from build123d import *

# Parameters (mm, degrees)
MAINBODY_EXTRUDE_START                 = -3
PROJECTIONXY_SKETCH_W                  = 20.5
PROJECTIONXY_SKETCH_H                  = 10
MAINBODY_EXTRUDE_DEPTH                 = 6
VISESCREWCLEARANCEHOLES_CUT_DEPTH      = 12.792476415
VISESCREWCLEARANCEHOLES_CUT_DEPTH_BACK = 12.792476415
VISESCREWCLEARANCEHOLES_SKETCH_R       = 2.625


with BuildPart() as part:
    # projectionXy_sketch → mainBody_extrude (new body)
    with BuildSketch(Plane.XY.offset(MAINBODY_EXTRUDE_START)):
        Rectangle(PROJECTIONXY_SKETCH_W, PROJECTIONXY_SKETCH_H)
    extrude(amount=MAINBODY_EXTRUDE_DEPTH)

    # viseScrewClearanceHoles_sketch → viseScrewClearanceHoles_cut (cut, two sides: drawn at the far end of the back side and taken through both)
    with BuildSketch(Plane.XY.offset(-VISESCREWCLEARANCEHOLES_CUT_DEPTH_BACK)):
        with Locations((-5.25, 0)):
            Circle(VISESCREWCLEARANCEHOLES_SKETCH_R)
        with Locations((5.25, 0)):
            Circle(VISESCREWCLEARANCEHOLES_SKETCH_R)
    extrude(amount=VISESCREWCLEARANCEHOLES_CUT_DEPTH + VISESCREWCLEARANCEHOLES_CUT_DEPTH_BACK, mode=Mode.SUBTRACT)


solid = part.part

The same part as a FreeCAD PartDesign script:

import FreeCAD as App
import Part
import Sketcher

V = App.Vector
Q = App.Units.Quantity


def add_polygon(sketch, points):
    """Adds a closed chain of lines whose ends are joined by coincident constraints."""
    first, n = sketch.GeometryCount, len(points)
    for a, b in zip(points, points[1:] + points[:1]):
        sketch.addGeometry(Part.LineSegment(App.Vector(*a, 0), App.Vector(*b, 0)), False)
    for i in range(n):
        sketch.addConstraint(Sketcher.Constraint("Coincident", first + i, 2, first + (i + 1) % n, 1))

doc = App.newDocument("Part")
params = doc.addObject("Spreadsheet::Sheet", "Params")
for row, (alias, value) in enumerate([
    ("sketch1_height", "10 mm"),
    ("sketch1_width", "20.5 mm"),
    ("pad1_length", "6 mm"),
    ("sketch2_diameter", "5.25 mm"),
], start=1):
    params.set(f"A{row}", alias)
    params.set(f"B{row}", "=" + value)
    params.setAlias(f"B{row}", alias)

body = doc.addObject("PartDesign::Body", "Body")

sketch1 = body.newObject("Sketcher::SketchObject", "Sketch")
sketch1.AttachmentSupport = (doc.getObject("XY_Plane"), [""])
sketch1.MapMode = "FlatFace"
sketch1.AttachmentOffset = App.Placement(V(0, 0, -3), App.Rotation())
add_polygon(sketch1, [(-10.25, 5), (-10.25, -5), (10.25, -5), (10.25, 5)])
sketch1.addConstraint([
    Sketcher.Constraint("Vertical", 0),
    Sketcher.Constraint("Horizontal", 1),
    Sketcher.Constraint("Vertical", 2),
    Sketcher.Constraint("Horizontal", 3),
    Sketcher.Constraint("Symmetric", 0, 2, 2, 2, -1, 1),
    Sketcher.Constraint("DistanceY", 0, 2, 0, 1, Q("10 mm")),
    Sketcher.Constraint("DistanceX", 1, 1, 1, 2, Q("20.5 mm")),
])
sketch1.setExpression("Constraints[9]", "Params.sketch1_height")
sketch1.setExpression("Constraints[10]", "Params.sketch1_width")
pad1 = body.newObject("PartDesign::Pad", "Pad")
pad1.Profile = sketch1
pad1.setExpression("Length", "Params.pad1_length")

sketch2 = body.newObject("Sketcher::SketchObject", "Sketch001")
sketch2.AttachmentSupport = (doc.getObject("XY_Plane"), [""])
sketch2.MapMode = "FlatFace"
sketch2.addGeometry([
    Part.Circle(V(-5.25, 0, 0), V(0, 0, 1), 2.625),
    Part.Circle(V(5.25, 0, 0), V(0, 0, 1), 2.625),
], False)
sketch2.addConstraint([
    Sketcher.Constraint("Equal", 0, 1),
    Sketcher.Constraint("Symmetric", 0, 3, 1, 3, -1, 1),
    Sketcher.Constraint("PointOnObject", 0, 3, -1),
    Sketcher.Constraint("Diameter", 0, Q("5.25 mm")),
    Sketcher.Constraint("DistanceX", 0, 3, 1, 3, Q("10.5 mm")),
])
sketch2.setExpression("Constraints[3]", "Params.sketch2_diameter")
pocket1 = body.newObject("PartDesign::Pocket", "Pocket")
pocket1.Profile = sketch2
pocket1.Type = "ThroughAll"
pocket1.Midplane = True

doc.recompute()
